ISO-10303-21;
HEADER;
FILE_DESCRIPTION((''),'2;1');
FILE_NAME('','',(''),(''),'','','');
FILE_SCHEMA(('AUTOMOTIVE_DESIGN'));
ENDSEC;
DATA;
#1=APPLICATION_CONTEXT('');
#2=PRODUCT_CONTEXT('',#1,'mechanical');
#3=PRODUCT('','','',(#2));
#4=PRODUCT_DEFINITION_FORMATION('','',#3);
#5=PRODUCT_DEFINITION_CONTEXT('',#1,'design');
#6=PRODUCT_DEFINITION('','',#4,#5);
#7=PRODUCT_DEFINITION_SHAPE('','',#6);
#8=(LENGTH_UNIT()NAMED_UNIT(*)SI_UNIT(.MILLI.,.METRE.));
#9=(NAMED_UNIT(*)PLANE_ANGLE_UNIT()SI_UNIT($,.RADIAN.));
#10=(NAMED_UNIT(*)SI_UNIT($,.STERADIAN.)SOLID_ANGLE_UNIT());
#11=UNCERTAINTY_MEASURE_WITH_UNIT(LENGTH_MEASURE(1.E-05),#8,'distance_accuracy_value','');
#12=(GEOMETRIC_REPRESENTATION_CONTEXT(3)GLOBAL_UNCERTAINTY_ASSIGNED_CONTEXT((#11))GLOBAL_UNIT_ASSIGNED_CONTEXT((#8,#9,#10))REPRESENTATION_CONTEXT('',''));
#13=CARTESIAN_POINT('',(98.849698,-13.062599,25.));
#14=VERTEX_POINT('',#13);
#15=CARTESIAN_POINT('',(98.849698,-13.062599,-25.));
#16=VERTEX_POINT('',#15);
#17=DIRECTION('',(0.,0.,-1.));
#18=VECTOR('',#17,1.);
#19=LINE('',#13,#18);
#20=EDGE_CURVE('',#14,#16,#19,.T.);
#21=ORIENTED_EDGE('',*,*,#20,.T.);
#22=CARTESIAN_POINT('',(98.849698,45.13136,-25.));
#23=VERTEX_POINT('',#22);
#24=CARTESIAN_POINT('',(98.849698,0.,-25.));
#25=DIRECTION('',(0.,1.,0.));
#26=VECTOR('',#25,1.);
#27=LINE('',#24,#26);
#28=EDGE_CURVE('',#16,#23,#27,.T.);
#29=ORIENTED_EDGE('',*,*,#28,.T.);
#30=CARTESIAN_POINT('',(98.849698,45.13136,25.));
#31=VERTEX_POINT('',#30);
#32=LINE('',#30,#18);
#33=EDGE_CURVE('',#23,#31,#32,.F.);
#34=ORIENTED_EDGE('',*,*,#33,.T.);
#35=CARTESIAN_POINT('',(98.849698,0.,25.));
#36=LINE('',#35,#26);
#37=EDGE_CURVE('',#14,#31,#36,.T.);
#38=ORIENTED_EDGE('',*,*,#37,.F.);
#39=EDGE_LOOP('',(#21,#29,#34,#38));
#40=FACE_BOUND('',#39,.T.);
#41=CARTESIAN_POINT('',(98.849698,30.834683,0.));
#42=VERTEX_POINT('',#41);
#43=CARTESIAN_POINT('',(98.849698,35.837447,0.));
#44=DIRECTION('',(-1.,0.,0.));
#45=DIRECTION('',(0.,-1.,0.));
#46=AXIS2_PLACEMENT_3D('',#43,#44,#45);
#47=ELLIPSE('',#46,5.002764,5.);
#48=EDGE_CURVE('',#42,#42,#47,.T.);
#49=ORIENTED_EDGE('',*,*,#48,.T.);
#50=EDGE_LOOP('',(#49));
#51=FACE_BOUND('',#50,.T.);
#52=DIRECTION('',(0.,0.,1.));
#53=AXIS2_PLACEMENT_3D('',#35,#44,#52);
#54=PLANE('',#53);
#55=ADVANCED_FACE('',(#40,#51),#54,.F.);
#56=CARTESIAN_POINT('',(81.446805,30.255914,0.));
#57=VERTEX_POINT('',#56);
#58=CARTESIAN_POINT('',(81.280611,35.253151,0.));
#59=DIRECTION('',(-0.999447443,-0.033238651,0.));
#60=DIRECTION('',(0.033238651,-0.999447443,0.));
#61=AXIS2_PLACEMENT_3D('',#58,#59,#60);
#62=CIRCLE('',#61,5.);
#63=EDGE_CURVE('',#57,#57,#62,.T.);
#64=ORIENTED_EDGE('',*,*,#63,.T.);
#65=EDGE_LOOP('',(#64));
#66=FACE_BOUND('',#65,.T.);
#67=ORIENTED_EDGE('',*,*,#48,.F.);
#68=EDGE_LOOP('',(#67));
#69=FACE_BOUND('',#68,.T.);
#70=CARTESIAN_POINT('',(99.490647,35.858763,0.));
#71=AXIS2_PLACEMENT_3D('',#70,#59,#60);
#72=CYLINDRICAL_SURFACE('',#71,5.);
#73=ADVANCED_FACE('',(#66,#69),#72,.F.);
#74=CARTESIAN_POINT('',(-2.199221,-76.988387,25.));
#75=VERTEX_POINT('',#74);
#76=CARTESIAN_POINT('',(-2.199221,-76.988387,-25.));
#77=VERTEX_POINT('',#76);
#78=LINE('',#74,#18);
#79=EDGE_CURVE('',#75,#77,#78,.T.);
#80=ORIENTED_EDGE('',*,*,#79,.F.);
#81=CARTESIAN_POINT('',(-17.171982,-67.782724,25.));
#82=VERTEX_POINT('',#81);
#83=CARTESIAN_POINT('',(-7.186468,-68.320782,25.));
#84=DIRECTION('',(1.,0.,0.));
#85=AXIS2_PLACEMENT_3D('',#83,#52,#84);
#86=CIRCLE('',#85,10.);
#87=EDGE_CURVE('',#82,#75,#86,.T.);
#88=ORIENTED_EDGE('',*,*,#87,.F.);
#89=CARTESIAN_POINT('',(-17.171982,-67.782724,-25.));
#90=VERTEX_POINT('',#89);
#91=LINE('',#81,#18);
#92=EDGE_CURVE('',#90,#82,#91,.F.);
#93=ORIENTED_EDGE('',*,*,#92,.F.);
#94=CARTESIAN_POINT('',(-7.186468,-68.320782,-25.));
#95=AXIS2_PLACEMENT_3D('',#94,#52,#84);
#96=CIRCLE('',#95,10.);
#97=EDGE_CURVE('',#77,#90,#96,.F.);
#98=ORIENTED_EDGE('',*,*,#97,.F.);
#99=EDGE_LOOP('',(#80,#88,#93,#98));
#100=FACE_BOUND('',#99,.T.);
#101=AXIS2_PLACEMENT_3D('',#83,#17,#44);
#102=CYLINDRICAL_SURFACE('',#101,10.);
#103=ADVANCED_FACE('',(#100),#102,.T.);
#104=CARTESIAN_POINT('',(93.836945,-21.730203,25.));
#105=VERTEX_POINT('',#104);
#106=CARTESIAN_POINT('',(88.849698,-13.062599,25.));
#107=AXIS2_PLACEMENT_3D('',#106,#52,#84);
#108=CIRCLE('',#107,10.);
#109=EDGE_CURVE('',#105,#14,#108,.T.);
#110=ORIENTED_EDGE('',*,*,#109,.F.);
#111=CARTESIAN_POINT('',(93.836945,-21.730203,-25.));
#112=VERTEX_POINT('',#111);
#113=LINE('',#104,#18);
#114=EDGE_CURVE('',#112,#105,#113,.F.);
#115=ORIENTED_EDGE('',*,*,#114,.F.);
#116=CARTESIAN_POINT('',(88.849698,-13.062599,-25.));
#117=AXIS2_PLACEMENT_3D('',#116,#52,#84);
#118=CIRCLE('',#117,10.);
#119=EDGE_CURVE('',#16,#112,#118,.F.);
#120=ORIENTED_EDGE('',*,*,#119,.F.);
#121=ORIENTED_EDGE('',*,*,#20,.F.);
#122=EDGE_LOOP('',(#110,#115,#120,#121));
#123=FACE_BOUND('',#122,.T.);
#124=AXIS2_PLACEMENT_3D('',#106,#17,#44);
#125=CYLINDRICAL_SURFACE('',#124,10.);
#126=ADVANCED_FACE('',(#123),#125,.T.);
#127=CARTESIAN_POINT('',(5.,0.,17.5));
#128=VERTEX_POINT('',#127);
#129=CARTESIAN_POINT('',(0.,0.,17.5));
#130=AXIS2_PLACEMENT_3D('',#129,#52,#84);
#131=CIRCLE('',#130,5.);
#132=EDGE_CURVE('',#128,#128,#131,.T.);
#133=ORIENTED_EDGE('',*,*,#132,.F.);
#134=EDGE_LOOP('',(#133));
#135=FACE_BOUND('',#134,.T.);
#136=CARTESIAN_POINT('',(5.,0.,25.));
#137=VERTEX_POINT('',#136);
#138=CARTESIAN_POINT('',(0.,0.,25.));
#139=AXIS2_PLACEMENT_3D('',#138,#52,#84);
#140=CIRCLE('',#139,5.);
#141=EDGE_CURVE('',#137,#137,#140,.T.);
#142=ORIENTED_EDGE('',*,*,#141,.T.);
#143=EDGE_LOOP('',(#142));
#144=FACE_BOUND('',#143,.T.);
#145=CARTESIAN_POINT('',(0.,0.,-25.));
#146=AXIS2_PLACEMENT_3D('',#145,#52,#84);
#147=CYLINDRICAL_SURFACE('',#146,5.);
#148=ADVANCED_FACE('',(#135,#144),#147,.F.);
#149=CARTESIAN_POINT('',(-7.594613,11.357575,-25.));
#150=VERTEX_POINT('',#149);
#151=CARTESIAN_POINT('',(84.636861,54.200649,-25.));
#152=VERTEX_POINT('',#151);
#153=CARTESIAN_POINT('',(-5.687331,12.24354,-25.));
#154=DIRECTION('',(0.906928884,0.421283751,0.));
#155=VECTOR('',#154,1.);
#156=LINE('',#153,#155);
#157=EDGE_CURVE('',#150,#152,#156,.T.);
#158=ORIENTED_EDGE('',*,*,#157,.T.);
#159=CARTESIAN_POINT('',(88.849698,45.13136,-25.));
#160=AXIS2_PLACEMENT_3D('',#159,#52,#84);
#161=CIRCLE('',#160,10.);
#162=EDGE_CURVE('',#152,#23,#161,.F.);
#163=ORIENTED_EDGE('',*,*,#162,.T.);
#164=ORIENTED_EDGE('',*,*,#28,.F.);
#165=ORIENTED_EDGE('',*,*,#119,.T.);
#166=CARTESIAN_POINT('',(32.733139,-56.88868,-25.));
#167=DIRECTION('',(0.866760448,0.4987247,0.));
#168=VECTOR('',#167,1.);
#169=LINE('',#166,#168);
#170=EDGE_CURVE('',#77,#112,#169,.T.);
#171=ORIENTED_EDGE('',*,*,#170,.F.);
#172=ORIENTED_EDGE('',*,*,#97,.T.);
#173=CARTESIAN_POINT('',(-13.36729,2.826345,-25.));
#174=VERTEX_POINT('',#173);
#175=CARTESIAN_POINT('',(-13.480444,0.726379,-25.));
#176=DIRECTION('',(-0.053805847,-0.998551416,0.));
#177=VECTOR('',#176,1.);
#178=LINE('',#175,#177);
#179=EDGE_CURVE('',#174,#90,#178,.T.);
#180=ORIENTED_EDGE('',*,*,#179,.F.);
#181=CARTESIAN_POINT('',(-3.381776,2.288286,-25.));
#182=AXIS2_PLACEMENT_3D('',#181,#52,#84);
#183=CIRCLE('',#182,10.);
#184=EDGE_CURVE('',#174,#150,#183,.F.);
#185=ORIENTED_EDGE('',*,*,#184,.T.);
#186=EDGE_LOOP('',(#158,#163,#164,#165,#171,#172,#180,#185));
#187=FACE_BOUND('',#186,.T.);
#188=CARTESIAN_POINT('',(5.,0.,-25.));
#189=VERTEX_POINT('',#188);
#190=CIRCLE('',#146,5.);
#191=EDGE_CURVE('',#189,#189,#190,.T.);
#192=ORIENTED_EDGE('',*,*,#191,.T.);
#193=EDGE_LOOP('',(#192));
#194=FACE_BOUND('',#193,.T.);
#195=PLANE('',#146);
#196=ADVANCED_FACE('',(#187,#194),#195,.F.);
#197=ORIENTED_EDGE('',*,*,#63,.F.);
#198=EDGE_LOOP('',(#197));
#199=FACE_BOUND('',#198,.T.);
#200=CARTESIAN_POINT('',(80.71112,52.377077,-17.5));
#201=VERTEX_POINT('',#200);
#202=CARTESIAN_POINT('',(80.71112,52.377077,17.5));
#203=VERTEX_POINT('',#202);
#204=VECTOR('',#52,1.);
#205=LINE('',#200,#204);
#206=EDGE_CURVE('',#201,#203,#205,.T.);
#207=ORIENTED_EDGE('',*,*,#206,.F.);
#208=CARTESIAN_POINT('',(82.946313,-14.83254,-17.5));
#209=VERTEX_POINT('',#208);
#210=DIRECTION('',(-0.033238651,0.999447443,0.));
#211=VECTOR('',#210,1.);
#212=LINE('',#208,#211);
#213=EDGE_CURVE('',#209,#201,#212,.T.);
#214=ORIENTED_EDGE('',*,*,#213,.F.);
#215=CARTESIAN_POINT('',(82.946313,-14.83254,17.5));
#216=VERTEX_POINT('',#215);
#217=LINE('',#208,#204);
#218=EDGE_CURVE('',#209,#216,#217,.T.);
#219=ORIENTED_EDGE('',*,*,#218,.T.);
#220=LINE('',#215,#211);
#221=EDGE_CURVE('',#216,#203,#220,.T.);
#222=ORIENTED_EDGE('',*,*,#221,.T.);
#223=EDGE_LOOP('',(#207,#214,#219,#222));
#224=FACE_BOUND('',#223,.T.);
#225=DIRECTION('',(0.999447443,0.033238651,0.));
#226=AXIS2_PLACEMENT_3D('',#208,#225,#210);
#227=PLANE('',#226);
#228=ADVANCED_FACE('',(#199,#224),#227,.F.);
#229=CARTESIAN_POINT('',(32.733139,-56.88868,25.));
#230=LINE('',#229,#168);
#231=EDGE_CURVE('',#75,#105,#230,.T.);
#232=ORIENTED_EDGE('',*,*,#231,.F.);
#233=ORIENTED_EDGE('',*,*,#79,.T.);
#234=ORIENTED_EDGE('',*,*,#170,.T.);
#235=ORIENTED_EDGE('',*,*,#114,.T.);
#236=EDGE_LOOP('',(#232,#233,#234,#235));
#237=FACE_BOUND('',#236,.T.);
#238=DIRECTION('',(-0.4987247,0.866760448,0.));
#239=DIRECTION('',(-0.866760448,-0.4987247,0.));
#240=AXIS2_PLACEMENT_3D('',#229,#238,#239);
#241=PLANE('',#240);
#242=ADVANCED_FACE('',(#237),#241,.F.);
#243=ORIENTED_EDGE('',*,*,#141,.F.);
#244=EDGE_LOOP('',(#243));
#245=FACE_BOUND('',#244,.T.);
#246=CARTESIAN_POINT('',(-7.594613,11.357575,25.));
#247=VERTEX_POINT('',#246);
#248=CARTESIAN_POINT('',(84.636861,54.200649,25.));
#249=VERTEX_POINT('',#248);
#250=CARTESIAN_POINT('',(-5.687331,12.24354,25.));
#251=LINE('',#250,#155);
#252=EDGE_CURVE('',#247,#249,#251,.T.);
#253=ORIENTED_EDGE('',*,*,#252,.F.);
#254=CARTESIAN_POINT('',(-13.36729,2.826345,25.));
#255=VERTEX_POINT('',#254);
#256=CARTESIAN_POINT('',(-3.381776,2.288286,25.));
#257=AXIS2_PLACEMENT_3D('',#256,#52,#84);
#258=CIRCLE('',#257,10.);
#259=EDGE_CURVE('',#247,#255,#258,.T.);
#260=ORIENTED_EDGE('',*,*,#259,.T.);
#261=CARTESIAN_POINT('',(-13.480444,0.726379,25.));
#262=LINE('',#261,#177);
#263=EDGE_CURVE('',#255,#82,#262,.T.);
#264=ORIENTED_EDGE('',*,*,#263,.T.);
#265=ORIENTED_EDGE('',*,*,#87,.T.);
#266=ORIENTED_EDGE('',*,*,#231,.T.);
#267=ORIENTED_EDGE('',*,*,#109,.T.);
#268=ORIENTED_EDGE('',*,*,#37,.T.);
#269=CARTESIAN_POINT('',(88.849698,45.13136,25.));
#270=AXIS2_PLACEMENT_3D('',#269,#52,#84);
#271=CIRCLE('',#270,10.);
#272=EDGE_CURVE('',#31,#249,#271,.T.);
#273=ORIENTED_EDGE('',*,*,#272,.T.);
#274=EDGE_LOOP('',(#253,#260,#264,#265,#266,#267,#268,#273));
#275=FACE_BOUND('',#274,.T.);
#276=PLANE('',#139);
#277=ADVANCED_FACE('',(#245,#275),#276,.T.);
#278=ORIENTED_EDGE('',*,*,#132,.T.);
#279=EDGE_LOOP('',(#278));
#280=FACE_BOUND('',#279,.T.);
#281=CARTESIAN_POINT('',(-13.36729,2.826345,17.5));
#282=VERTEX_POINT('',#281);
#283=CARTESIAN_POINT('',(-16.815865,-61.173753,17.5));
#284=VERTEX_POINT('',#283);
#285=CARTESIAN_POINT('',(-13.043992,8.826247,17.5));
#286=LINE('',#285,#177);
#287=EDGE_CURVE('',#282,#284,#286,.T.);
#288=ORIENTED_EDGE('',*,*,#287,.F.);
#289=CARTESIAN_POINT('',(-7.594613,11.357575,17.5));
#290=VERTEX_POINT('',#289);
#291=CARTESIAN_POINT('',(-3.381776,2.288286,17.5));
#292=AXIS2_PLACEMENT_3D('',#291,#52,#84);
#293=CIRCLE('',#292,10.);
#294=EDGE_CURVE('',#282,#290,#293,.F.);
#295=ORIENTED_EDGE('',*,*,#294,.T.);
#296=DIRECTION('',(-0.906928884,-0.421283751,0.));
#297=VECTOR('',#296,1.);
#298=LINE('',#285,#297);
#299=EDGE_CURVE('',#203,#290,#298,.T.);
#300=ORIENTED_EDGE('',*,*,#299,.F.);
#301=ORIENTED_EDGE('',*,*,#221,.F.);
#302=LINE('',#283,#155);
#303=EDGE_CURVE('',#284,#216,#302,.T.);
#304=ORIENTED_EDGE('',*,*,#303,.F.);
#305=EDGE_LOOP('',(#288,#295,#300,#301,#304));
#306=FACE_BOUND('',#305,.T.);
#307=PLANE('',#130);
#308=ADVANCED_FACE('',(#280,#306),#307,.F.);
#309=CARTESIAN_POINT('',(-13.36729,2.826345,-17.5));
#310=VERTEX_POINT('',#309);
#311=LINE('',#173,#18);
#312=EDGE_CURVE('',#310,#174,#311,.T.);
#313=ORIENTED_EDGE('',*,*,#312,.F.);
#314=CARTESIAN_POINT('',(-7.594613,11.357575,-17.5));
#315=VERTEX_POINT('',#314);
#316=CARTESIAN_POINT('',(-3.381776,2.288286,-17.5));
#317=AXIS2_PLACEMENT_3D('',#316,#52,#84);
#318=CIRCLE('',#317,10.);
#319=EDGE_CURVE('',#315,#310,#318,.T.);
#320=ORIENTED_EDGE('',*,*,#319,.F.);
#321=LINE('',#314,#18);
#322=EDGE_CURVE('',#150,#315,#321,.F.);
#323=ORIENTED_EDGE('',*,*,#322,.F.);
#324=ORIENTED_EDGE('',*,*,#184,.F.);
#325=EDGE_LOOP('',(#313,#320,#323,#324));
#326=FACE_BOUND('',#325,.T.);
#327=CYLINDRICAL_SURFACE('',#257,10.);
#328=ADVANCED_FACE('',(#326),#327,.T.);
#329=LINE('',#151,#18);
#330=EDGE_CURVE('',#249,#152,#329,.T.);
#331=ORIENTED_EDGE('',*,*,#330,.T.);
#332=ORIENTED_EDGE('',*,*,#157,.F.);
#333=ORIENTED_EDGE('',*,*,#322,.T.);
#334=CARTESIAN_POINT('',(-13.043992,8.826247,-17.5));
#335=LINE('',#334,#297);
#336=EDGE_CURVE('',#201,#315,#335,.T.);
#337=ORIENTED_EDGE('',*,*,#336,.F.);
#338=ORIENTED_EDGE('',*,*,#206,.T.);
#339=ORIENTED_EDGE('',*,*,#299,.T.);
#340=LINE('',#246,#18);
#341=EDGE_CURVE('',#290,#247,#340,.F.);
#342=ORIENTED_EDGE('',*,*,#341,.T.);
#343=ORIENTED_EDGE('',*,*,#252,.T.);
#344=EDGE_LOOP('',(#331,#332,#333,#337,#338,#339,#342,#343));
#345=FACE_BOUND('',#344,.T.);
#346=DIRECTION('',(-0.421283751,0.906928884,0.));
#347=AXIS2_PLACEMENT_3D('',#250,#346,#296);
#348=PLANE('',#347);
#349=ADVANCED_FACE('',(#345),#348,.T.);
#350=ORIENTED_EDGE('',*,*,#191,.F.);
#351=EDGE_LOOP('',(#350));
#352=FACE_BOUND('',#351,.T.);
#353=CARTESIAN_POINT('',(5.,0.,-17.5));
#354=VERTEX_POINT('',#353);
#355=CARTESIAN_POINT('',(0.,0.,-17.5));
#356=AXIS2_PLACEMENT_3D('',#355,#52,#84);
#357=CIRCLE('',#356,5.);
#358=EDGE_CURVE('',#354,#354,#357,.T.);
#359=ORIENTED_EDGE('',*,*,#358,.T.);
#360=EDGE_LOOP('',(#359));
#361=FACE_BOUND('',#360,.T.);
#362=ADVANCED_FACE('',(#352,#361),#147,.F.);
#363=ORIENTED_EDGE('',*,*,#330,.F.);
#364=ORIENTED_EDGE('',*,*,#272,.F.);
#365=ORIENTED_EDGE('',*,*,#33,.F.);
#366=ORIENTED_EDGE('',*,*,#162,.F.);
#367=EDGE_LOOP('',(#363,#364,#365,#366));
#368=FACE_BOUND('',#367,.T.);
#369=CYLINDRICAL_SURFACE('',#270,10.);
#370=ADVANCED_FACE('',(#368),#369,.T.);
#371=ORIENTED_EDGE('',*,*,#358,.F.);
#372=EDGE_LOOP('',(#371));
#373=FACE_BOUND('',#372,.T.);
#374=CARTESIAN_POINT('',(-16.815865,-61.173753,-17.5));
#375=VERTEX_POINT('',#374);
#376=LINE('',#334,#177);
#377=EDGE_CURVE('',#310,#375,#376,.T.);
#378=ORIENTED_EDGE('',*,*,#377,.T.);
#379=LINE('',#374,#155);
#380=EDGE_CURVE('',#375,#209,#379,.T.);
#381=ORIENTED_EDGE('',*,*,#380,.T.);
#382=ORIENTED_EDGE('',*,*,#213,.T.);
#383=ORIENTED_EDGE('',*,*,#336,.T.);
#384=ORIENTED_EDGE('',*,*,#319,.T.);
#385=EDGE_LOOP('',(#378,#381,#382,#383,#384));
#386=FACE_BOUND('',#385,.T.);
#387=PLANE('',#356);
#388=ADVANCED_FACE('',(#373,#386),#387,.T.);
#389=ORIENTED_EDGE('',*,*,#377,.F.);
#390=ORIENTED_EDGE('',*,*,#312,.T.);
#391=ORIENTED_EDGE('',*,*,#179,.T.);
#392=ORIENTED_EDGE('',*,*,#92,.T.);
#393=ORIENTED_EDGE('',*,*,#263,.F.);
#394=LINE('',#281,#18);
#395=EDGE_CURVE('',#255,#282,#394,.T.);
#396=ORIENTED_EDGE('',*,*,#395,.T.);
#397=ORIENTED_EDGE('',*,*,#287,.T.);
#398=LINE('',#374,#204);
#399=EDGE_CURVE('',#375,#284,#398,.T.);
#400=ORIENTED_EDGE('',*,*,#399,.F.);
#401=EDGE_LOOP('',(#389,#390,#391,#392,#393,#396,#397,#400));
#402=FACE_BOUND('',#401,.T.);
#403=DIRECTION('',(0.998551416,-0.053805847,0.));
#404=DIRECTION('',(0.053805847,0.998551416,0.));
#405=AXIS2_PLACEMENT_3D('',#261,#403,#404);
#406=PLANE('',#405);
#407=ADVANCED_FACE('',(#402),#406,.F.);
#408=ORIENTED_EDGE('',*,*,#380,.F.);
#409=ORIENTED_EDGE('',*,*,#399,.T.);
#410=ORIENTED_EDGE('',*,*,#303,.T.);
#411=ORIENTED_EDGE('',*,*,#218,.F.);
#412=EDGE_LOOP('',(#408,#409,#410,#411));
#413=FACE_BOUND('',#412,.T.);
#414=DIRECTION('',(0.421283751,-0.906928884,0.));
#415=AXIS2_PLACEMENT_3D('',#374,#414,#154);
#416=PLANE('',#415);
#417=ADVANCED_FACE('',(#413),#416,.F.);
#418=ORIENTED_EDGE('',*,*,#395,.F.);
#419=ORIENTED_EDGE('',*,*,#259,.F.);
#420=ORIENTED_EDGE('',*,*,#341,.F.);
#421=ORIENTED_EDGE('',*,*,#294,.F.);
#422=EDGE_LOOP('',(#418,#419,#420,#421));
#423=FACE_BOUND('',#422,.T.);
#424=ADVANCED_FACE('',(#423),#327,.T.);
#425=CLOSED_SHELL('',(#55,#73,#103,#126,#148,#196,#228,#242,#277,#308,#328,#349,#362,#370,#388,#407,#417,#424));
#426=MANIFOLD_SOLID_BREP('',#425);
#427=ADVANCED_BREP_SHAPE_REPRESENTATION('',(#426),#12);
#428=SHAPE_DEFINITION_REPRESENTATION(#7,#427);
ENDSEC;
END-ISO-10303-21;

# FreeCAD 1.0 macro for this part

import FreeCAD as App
import Part
import Sketcher
Q = App.Units.Quantity


def edges_at(feature, points):
    """Names of the edges that pass closest to the given points."""
    edges = feature.Shape.Edges
    near = lambda p: min(range(len(edges)), key=lambda i: edges[i].distToShape(Part.Vertex(*p))[0])
    return sorted({f"Edge{near(p) + 1}" for p in points})


def add_polygon(sketch, points):
    """Adds a closed chain of lines whose ends are joined by coincident constraints."""
    first, n = sketch.GeometryCount, len(points)
    for a, b in zip(points, points[1:] + points[:1]):
        sketch.addGeometry(Part.LineSegment(App.Vector(*a, 0), App.Vector(*b, 0)), False)
    for i in range(n):
        sketch.addConstraint(Sketcher.Constraint("Coincident", first + i, 2, first + (i + 1) % n, 1))

doc = App.newDocument("Part")
body = doc.addObject("PartDesign::Body", "Body")

# Sketch on XY plane
sketch1 = body.newObject("Sketcher::SketchObject", "Sketch")
sketch1.AttachmentSupport = (doc.getObject("XY_Plane"), [""])
sketch1.MapMode = "FlatFace"
add_polygon(sketch1, [(-18, -86), (99, -19), (99, 61), (-13, 9)])  # lines 0-3
sketch1.addConstraint(Sketcher.Constraint("Vertical", 1))
sketch1.addConstraint(Sketcher.Constraint("Distance", 0, Q("135 mm")))
sketch1.addConstraint(Sketcher.Constraint("DistanceY", 3, 2, 2, 2, Q("95 mm")))
sketch1.addConstraint(Sketcher.Constraint("DistanceY", 1, 1, 1, 2, Q("79.64867 mm")))
sketch1.addConstraint(Sketcher.Constraint("DistanceX", -1, 1, 0, 2, Q("98.849698 mm")))
sketch1.addConstraint(Sketcher.Constraint("DistanceY", 0, 2, -1, 1, Q("18.845919 mm")))
sketch1.addConstraint(Sketcher.Constraint("DistanceX", 2, 2, -1, 1, Q("13.043992 mm")))
sketch1.addConstraint(Sketcher.Constraint("DistanceX", 3, 2, 2, 2, Q("5.118971 mm")))
pad1 = body.newObject("PartDesign::Pad", "Pad")
pad1.Profile = sketch1
pad1.Length = 50
pad1.Midplane = True

# Sketch on XY plane
sketch2 = body.newObject("Sketcher::SketchObject", "Sketch001")
sketch2.AttachmentSupport = (doc.getObject("XY_Plane"), [""])
sketch2.MapMode = "FlatFace"
add_polygon(sketch2, [(-17, -61), (83, -15), (81, 52), (-13, 9)])  # lines 0-3
sketch2.addConstraint(Sketcher.Constraint("Parallel", 0, 2))
sketch2.addConstraint(Sketcher.Constraint("Distance", 0, Q("110 mm")))
sketch2.addConstraint(Sketcher.Constraint("DistanceY", 3, 2, 2, 2, Q("70 mm")))
sketch2.addConstraint(Sketcher.Constraint("DistanceY", 0, 2, -1, 1, Q("14.83254 mm")))
sketch2.addConstraint(Sketcher.Constraint("DistanceX", -1, 1, 1, 2, Q("80.71112 mm")))
sketch2.addConstraint(Sketcher.Constraint("DistanceX", 2, 2, -1, 1, Q("13.043992 mm")))
sketch2.addConstraint(Sketcher.Constraint("DistanceY", 2, 2, 1, 2, Q("43.55083 mm")))
sketch2.addConstraint(Sketcher.Constraint("Distance", 1, Q("67.246775 mm")))
pocket1 = body.newObject("PartDesign::Pocket", "Pocket")
pocket1.Profile = sketch2
pocket1.Length = 35
pocket1.Midplane = True

# Sketch on XY plane
sketch3 = body.newObject("Sketcher::SketchObject", "Sketch002")
sketch3.AttachmentSupport = (doc.getObject("XY_Plane"), [""])
sketch3.MapMode = "FlatFace"
sketch3.AttachmentOffset = App.Placement(App.Vector(0, 0, 25), App.Rotation())
sketch3.addGeometry(Part.Circle(App.Vector(0, 0, 0), App.Vector(0, 0, 1), 5), False)
sketch3.addConstraint(Sketcher.Constraint("Coincident", 0, 3, -1, 1))
sketch3.addConstraint(Sketcher.Constraint("Diameter", 0, Q("10 mm")))
pocket2 = body.newObject("PartDesign::Pocket", "Pocket001")
pocket2.Profile = sketch3
pocket2.Type = "ThroughAll"
doc.recompute()

fillet = body.newObject("PartDesign::Fillet", "Fillet")
fillet.Base = (pocket2, edges_at(pocket2, [(-13.044, 8.826, -21.25), (-13.044, 8.826, 21.25)]))
fillet.Radius = 10
doc.recompute()

fillet2 = body.newObject("PartDesign::Fillet", "Fillet001")
fillet2.Base = (fillet, edges_at(fillet, [(-18.163, -86.174, 0)]))
fillet2.Radius = 10
doc.recompute()

fillet3 = body.newObject("PartDesign::Fillet", "Fillet002")
fillet3.Base = (fillet2, edges_at(fillet2, [(98.85, 60.803, 0), (98.85, -18.846, 0)]))
fillet3.Radius = 10

# Sketch on an angled plane
sketch4 = body.newObject("Sketcher::SketchObject", "Sketch003")
sketch4.Placement = App.Placement(App.Vector(82.361932, 2.739113, 0), App.Rotation(App.Vector(0, 0, 1), App.Vector(-0.033238651, 0.999447443, 0), App.Vector(-0.999447443, -0.033238651, 0), "ZXY"))
sketch4.addGeometry(Part.Circle(App.Vector(0, 33, 0), App.Vector(0, 0, 1), 5), False)
sketch4.addConstraint(Sketcher.Constraint("PointOnObject", 0, 3, -2))
sketch4.addConstraint(Sketcher.Constraint("Diameter", 0, Q("10 mm")))
sketch4.addConstraint(Sketcher.Constraint("DistanceY", -1, 1, 0, 3, Q("32.532014 mm")))
pocket3 = body.newObject("PartDesign::Pocket", "Pocket002")
pocket3.Profile = sketch4
pocket3.Type = "ThroughAll"

doc.recompute()
